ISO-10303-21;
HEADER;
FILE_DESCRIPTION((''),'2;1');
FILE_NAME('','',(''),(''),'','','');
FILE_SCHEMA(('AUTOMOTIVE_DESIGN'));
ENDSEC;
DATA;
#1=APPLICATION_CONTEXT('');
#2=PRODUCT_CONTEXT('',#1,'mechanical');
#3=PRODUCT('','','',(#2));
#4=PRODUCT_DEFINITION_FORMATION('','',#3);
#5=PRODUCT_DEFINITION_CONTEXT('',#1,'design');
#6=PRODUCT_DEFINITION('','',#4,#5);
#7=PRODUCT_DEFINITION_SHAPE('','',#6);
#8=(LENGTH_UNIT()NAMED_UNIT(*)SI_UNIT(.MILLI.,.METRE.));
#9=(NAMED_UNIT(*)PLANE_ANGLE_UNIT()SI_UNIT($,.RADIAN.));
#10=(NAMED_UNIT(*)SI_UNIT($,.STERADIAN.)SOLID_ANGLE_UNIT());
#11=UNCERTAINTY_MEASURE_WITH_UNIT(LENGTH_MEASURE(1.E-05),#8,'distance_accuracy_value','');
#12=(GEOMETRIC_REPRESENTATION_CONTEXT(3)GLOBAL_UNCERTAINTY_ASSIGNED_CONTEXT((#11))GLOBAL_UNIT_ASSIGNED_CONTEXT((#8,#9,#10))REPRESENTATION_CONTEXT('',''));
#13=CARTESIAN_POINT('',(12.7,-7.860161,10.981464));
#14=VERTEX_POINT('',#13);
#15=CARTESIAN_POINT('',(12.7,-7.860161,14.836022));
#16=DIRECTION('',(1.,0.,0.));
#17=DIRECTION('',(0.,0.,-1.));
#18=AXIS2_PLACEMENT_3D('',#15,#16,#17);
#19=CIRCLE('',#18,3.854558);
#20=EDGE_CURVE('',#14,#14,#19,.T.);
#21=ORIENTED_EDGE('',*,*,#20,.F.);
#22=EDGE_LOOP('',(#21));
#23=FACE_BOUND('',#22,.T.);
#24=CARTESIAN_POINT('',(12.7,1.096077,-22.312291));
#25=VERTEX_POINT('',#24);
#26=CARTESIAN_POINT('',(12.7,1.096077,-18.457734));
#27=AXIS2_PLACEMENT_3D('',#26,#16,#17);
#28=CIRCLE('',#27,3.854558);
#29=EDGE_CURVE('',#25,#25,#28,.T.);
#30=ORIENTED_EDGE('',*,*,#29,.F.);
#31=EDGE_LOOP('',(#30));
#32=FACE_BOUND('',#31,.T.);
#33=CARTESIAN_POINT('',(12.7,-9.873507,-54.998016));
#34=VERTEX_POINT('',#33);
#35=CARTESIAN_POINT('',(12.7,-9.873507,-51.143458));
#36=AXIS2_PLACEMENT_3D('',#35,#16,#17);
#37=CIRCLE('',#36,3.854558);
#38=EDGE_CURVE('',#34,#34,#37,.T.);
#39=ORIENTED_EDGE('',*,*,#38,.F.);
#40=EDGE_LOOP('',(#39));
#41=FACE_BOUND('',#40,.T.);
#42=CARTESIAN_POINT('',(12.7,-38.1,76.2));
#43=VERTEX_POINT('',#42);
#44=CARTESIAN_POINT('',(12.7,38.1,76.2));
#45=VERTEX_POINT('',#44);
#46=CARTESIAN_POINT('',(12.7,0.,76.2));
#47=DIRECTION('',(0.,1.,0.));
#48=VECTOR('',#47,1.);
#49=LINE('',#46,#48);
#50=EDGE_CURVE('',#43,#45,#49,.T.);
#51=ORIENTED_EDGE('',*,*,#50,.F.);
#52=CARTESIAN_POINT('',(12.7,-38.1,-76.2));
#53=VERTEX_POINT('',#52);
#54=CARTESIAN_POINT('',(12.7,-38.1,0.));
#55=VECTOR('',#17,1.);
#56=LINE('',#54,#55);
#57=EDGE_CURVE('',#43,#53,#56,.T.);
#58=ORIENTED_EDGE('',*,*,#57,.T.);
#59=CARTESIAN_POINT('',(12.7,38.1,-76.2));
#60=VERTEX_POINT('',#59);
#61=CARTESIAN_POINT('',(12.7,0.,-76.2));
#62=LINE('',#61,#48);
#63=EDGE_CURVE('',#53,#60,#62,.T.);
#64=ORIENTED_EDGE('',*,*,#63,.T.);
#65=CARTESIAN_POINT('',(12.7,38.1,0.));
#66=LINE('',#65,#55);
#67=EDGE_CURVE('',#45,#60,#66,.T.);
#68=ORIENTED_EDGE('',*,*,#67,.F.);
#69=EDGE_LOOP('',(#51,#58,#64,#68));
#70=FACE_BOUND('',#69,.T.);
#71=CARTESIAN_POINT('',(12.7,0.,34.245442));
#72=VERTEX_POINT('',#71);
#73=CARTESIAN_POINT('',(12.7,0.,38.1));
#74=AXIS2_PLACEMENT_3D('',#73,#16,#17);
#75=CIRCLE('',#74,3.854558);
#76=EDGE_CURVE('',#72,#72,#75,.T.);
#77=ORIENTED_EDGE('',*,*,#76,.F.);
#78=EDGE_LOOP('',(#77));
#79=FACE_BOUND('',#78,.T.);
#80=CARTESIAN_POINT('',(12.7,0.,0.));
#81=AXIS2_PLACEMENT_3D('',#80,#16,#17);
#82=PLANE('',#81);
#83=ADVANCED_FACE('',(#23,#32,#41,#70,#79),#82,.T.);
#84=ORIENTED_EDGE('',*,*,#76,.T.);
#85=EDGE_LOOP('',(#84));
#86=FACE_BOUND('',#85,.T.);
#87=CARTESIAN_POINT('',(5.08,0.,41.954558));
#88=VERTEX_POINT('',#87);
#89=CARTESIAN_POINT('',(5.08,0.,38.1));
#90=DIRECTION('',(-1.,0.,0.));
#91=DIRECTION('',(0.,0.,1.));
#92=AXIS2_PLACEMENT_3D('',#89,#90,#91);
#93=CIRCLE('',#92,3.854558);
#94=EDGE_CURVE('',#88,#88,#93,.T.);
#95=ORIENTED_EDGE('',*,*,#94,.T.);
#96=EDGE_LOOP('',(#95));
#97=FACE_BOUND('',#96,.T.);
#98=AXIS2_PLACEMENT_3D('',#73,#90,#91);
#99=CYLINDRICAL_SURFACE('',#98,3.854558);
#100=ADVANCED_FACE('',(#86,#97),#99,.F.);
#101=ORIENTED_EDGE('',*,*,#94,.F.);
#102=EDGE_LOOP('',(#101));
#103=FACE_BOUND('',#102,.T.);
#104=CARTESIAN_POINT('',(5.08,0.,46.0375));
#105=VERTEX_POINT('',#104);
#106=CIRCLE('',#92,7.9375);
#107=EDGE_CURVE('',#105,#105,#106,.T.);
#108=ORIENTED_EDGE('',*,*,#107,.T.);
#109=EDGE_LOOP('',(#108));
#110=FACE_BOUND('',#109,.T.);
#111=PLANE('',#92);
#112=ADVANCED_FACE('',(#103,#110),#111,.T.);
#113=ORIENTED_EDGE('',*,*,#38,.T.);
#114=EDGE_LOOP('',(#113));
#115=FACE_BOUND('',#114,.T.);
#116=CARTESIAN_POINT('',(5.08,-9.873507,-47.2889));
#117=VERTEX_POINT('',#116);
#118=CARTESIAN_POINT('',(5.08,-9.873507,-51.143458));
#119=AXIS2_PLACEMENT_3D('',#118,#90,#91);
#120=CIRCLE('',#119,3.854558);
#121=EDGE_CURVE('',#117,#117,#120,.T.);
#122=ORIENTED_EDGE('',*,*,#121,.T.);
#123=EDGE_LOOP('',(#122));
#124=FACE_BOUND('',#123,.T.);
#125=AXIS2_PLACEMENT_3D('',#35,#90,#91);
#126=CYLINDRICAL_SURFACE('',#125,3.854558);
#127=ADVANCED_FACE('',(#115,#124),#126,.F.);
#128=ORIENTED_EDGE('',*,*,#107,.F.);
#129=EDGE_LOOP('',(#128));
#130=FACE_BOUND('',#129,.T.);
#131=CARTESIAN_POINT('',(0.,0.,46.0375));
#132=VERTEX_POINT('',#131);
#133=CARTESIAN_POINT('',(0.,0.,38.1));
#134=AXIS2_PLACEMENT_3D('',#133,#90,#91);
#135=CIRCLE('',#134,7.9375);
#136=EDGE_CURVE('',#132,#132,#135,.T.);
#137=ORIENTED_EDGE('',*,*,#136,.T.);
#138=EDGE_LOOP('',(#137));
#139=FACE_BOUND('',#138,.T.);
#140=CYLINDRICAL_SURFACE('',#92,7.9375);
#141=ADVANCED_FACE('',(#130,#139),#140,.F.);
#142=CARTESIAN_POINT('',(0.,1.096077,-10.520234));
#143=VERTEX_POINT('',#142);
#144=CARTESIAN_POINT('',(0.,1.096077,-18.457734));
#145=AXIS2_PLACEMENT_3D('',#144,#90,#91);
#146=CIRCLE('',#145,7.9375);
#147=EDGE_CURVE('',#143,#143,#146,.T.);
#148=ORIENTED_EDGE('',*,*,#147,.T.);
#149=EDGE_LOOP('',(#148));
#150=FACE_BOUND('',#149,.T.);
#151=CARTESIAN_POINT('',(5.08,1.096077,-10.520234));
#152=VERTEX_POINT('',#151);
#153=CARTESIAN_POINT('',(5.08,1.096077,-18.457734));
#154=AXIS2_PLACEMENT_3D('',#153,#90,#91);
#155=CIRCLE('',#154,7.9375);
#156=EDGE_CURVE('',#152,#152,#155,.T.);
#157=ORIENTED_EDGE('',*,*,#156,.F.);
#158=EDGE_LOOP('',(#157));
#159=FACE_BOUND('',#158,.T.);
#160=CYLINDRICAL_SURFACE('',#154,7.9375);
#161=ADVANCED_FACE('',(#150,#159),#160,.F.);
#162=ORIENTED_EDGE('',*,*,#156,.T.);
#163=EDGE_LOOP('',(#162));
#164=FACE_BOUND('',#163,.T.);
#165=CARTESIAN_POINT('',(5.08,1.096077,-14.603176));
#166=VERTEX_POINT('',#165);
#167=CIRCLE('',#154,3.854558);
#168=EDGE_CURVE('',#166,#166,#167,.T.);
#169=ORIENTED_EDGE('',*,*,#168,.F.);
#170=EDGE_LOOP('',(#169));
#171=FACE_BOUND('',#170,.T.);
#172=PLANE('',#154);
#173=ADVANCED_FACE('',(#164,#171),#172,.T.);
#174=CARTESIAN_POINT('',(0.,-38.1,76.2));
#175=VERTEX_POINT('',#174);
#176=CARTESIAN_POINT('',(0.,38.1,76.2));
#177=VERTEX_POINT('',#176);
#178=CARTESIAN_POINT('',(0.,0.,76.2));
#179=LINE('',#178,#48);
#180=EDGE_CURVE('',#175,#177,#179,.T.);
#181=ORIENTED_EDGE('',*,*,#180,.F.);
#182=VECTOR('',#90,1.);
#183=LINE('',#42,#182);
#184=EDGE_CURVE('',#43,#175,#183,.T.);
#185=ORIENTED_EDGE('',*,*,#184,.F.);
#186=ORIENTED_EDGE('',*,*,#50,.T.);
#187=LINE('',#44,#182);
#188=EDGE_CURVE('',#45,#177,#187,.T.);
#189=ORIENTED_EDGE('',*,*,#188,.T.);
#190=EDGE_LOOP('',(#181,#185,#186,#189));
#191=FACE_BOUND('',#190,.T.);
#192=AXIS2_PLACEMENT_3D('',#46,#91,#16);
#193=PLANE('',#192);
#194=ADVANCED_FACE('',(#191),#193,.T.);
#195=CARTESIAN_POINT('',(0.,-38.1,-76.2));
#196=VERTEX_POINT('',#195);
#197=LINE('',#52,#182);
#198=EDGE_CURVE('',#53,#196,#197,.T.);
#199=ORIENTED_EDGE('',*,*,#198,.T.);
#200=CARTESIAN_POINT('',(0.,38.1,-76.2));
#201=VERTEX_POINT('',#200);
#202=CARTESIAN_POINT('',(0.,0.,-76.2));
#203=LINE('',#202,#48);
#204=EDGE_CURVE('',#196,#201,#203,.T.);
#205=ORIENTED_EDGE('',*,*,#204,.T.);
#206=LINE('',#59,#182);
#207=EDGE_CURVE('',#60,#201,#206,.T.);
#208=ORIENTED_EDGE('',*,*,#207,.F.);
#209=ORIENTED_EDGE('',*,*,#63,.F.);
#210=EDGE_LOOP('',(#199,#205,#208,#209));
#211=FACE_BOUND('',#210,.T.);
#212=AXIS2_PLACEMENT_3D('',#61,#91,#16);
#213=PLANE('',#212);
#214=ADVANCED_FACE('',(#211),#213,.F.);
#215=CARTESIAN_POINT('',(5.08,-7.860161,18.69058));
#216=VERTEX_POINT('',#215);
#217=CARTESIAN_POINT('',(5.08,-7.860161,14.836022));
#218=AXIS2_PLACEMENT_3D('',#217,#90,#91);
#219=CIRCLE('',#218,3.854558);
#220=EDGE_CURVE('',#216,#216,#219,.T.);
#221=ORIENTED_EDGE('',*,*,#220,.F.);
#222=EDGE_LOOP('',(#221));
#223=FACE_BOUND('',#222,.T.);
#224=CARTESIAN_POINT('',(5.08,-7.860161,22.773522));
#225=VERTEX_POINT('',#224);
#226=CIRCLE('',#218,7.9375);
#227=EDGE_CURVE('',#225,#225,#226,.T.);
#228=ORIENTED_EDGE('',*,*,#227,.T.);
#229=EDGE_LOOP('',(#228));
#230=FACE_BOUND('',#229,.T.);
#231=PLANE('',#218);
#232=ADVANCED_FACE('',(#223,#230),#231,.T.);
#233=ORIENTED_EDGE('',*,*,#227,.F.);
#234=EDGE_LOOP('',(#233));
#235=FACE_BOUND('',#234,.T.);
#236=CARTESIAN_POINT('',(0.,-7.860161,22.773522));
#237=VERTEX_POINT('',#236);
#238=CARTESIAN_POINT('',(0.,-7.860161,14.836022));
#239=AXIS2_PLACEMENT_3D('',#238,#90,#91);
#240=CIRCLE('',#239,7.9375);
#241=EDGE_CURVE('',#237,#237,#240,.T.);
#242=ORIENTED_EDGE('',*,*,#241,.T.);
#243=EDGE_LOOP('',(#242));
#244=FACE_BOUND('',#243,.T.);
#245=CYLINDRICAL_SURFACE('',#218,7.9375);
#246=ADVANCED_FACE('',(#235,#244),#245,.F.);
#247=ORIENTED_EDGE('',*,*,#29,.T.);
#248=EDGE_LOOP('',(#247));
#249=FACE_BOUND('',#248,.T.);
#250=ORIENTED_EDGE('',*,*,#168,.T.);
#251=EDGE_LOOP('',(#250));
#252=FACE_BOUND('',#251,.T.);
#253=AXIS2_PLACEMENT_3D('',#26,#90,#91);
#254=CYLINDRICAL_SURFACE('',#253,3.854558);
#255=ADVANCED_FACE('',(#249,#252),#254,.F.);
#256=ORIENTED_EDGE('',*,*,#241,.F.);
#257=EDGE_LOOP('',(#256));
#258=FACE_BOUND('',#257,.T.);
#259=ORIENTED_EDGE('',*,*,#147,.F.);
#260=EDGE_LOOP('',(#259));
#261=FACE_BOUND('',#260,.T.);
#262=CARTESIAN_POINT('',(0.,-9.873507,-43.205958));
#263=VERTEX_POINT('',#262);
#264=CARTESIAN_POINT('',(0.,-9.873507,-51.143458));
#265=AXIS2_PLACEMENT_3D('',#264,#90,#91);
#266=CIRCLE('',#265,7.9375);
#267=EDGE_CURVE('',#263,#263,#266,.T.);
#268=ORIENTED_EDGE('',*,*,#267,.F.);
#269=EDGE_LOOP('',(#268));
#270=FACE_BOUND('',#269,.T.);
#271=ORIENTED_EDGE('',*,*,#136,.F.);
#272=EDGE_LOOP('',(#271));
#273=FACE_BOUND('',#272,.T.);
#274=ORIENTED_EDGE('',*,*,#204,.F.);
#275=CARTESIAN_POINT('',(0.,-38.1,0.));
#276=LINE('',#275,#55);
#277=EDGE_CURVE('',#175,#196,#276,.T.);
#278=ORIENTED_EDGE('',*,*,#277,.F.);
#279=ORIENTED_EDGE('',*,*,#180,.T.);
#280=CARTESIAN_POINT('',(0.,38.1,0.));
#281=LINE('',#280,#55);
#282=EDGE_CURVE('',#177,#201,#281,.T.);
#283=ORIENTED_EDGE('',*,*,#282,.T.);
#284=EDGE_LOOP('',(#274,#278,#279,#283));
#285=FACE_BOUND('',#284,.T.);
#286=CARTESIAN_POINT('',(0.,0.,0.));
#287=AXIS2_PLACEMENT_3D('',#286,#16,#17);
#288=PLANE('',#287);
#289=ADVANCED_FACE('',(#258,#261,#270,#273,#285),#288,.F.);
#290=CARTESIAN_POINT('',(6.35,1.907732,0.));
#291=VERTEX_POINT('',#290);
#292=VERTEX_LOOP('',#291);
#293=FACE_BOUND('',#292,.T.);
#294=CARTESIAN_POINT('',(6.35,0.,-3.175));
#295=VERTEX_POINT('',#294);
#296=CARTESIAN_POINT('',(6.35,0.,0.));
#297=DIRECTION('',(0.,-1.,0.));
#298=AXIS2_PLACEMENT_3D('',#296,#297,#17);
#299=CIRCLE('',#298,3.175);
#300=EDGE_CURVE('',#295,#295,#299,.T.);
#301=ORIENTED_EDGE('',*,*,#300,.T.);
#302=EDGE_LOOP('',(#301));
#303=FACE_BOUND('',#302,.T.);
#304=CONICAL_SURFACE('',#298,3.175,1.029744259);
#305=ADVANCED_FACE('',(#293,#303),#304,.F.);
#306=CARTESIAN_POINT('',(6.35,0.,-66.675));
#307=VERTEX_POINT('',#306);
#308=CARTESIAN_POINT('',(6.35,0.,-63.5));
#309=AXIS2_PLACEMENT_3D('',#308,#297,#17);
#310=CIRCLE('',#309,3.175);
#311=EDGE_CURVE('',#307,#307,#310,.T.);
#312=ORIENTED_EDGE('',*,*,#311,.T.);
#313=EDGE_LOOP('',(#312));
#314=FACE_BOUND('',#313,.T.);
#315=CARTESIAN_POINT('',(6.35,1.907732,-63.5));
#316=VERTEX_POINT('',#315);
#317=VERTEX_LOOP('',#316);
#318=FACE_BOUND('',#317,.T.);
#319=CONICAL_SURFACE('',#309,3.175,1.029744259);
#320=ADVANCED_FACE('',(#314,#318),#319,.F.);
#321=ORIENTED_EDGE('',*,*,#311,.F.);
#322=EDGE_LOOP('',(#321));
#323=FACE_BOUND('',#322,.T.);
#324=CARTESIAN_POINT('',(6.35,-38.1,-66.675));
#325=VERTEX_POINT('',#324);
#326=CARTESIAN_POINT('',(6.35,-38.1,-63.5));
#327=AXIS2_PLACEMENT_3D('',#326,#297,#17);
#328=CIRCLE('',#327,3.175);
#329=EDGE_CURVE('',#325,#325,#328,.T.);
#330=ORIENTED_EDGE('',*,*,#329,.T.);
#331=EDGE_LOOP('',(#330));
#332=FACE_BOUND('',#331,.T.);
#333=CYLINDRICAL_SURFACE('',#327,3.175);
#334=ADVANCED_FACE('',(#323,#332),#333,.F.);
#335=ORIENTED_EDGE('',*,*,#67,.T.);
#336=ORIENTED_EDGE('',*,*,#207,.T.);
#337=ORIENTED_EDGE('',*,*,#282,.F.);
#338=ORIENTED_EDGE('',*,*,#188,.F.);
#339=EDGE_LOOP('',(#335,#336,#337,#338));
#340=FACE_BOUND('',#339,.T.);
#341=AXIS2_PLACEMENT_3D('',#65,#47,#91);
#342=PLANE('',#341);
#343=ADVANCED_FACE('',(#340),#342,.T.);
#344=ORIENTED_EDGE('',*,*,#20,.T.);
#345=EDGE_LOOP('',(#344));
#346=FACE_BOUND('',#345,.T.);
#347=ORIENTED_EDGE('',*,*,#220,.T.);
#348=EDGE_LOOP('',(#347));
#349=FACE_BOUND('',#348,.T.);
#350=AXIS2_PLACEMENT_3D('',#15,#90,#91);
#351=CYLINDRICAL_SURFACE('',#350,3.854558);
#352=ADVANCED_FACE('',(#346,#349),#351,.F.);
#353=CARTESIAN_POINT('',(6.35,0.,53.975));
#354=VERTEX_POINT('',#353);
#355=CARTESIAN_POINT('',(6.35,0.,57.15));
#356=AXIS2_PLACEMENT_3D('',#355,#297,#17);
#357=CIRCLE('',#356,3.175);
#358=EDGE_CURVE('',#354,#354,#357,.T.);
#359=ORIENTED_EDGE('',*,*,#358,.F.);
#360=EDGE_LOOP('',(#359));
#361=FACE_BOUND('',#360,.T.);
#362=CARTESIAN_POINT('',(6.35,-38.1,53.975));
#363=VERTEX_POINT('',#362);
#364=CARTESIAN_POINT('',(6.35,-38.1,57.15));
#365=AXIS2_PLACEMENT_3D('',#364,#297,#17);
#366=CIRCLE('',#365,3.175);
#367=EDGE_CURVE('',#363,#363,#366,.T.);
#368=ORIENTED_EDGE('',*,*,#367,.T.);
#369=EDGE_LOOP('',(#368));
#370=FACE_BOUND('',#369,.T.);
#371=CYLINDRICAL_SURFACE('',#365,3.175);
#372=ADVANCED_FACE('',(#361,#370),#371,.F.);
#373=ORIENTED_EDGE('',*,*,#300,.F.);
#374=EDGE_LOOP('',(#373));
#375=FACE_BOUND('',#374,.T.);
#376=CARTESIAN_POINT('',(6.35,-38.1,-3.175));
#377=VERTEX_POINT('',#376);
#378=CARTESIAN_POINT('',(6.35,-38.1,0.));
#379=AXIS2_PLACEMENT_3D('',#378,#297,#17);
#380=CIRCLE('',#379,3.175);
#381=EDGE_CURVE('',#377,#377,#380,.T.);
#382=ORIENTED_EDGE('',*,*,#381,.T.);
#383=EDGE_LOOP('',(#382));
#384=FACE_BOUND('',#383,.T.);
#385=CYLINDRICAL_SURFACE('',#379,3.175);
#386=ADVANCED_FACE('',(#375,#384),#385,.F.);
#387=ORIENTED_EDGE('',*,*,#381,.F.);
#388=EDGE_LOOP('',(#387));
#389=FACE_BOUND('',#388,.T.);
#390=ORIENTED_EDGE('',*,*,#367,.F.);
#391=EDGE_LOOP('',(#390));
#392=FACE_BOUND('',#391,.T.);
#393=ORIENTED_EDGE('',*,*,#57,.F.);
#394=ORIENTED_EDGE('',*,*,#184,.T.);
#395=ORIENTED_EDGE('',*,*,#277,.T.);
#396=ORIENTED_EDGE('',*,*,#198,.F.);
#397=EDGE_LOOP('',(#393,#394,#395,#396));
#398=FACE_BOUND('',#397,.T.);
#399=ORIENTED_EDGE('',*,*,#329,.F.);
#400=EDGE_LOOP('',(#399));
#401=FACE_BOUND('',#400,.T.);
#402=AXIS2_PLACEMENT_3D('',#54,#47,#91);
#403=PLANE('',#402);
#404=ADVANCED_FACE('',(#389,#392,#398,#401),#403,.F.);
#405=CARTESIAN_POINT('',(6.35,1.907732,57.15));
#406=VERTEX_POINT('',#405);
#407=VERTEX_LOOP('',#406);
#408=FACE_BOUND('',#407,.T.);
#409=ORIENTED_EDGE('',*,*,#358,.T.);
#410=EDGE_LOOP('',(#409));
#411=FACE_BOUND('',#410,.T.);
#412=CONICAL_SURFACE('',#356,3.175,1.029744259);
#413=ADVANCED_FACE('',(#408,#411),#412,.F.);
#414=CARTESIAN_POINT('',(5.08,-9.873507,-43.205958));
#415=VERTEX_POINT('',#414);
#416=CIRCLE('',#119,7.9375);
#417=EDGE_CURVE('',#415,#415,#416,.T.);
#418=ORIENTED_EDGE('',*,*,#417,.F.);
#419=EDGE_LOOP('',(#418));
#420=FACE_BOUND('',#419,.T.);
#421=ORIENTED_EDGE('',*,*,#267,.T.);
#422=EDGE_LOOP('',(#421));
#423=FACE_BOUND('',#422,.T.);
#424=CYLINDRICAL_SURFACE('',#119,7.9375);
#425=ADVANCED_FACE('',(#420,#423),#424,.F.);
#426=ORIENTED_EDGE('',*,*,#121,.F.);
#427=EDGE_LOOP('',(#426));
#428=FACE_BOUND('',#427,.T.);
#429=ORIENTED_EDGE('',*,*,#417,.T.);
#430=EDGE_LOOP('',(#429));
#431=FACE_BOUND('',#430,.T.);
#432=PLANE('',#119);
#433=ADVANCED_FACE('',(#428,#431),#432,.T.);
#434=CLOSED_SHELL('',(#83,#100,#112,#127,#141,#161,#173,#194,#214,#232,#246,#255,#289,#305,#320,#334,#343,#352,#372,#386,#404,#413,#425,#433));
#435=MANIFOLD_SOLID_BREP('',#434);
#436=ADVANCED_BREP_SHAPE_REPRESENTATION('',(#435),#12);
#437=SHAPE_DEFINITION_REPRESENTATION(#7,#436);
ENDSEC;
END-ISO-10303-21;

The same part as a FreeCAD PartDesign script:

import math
import FreeCAD as App
import Part
import Sketcher

V = App.Vector
Q = App.Units.Quantity


def add_polygon(sketch, points):
    """Adds a closed chain of lines whose ends are joined by coincident constraints."""
    first, n = sketch.GeometryCount, len(points)
    for a, b in zip(points, points[1:] + points[:1]):
        sketch.addGeometry(Part.LineSegment(App.Vector(*a, 0), App.Vector(*b, 0)), False)
    for i in range(n):
        sketch.addConstraint(Sketcher.Constraint("Coincident", first + i, 2, first + (i + 1) % n, 1))

doc = App.newDocument("Part")
params = doc.addObject("Spreadsheet::Sheet", "Params")
for row, (alias, value) in enumerate([
    ("sketch1_width", "3 in"),
    ("sketch1_height", "6 in"),
    ("pad1_length", "0.5 in"),
    ("sketch2_diameter", "0.25 in"),
    ("hole_diameter", "0.25 in"),
    ("hole_depth", "1.5 in"),
    ("sketch3_diameter", "0.625 in"),
    ("pocket1_length", "0.2 in"),
], start=1):
    params.set(f"A{row}", alias)
    params.set(f"B{row}", "=" + value)
    params.setAlias(f"B{row}", alias)

body = doc.addObject("PartDesign::Body", "Body")

sketch1 = body.newObject("Sketcher::SketchObject", "Sketch")
sketch1.AttachmentSupport = (doc.getObject("YZ_Plane"), [""])
sketch1.MapMode = "FlatFace"
add_polygon(sketch1, [(38.1, 76.2), (-38.1, 76.2), (-38.1, -76.2), (38.1, -76.2)])
sketch1.addGeometry(Part.Circle(V(0, 38.1, 0), V(0, 0, 1), 3.854558), False)
sketch1.addGeometry(Part.ArcOfCircle(Part.Circle(V(1.096077, -18.457734, 0), V(0, 0, 1), 3.854558), math.radians(-90), math.radians(106.520525)), False)
sketch1.addGeometry(Part.ArcOfCircle(Part.Circle(V(1.096077, -18.457734, 0), V(0, 0, 1), 3.854558), math.radians(-106.520525), math.radians(-90)), False)
sketch1.addGeometry(Part.ArcOfCircle(Part.Circle(V(1.096077, -18.457734, 0), V(0, 0, 1), 3.854558), math.radians(106.520525), math.radians(253.479475)), False)
sketch1.addGeometry(Part.Circle(V(-7.860161, 14.836022, 0), V(0, 0, 1), 3.854558), False)
sketch1.addGeometry(Part.Circle(V(-9.873507, -51.143458, 0), V(0, 0, 1), 3.854558), False)
sketch1.addConstraint([
    Sketcher.Constraint("Tangent", 5, 1, 6, 2),
    Sketcher.Constraint("Tangent", 6, 1, 7, 2),
    Sketcher.Constraint("Tangent", 7, 1, 5, 2),
    Sketcher.Constraint("Horizontal", 0),
    Sketcher.Constraint("Vertical", 1),
    Sketcher.Constraint("Horizontal", 2),
    Sketcher.Constraint("Vertical", 3),
    Sketcher.Constraint("Equal", 4, 5),
    Sketcher.Constraint("Equal", 7, 8),
    Sketcher.Constraint("Equal", 8, 9),
    Sketcher.Constraint("Symmetric", 0, 2, 2, 2, -1, 1),
    Sketcher.Constraint("PointOnObject", 4, 3, -2),
    Sketcher.Constraint("PointOnObject", 6, 1, -2),
    Sketcher.Constraint("PointOnObject", 7, 1, -2),
    Sketcher.Constraint("Vertical", 7, 3, 5, 1),
    Sketcher.Constraint("DistanceX", 0, 2, 0, 1, Q("3 in")),
    Sketcher.Constraint("DistanceY", 1, 2, 1, 1, Q("6 in")),
    Sketcher.Constraint("DistanceY", -1, 1, 4, 3, Q("1.5 in")),
    Sketcher.Constraint("Diameter", 4, Q("7.709116 mm")),
    Sketcher.Constraint("DistanceY", 7, 1, -1, 1, Q("14.7623 mm")),
    Sketcher.Constraint("DistanceX", 8, 3, -1, 1, Q("7.860161 mm")),
    Sketcher.Constraint("DistanceY", 5, 1, -1, 1, Q("22.312291 mm")),
    Sketcher.Constraint("DistanceY", 9, 3, 8, 3, Q("65.97948 mm")),
    Sketcher.Constraint("DistanceY", 9, 3, 6, 1, Q("28.990291 mm")),
    Sketcher.Constraint("DistanceX", 9, 3, -1, 1, Q("9.873507 mm")),
])
sketch1.setExpression("Constraints[19]", "Params.sketch1_width")
sketch1.setExpression("Constraints[20]", "Params.sketch1_height")
pad1 = body.newObject("PartDesign::Pad", "Pad")
pad1.Profile = sketch1
pad1.setExpression("Length", "Params.pad1_length")

sketch2 = body.newObject("Sketcher::SketchObject", "Sketch001")
sketch2.AttachmentSupport = (doc.getObject("XZ_Plane"), [""])
sketch2.MapMode = "FlatFace"
sketch2.AttachmentOffset = App.Placement(V(0, 0, 1.5 * 25.4), App.Rotation())
sketch2.addGeometry([
    Part.Circle(V(6.35, 57.15, 0), V(0, 0, 1), 3.175),
    Part.Circle(V(6.35, -63.5, 0), V(0, 0, 1), 3.175),
    Part.Circle(V(6.35, 0, 0), V(0, 0, 1), 3.175),
], False)
sketch2.addConstraint([
    Sketcher.Constraint("Equal", 0, 1),
    Sketcher.Constraint("Equal", 1, 2),
    Sketcher.Constraint("PointOnObject", 2, 3, -1),
    Sketcher.Constraint("Vertical", 0, 3, 1, 3),
    Sketcher.Constraint("Vertical", 1, 3, 2, 3),
    Sketcher.Constraint("Diameter", 0, Q("0.25 in")),
    Sketcher.Constraint("DistanceY", 1, 3, -1, 1, Q("2.5 in")),
    Sketcher.Constraint("DistanceX", -1, 1, 0, 3, Q("0.25 in")),
    Sketcher.Constraint("DistanceY", -1, 1, 0, 3, Q("2.25 in")),
])
sketch2.setExpression("Constraints[5]", "Params.sketch2_diameter")
doc.recompute()
hole = body.newObject("PartDesign::Hole", "Hole")
hole.Profile = sketch2
hole.ThreadType = "None"
hole.setExpression("Diameter", "Params.hole_diameter")
hole.DepthType = "Dimension"
hole.setExpression("Depth", "Params.hole_depth")
hole.DrillPoint = "Angled"
hole.DrillPointAngle = 118

sketch3 = body.newObject("Sketcher::SketchObject", "Sketch002")
sketch3.AttachmentSupport = (doc.getObject("YZ_Plane"), [""])
sketch3.MapMode = "FlatFace"
sketch3.addGeometry([
    Part.Circle(V(0, 38.1, 0), V(0, 0, 1), 7.9375),
    Part.Circle(V(-7.860161, 14.836022, 0), V(0, 0, 1), 7.9375),
    Part.Circle(V(1.096077, -18.457734, 0), V(0, 0, 1), 7.9375),
    Part.Circle(V(-9.873507, -51.143458, 0), V(0, 0, 1), 7.9375),
], False)
sketch3.addConstraint([
    Sketcher.Constraint("Equal", 0, 1),
    Sketcher.Constraint("Equal", 1, 2),
    Sketcher.Constraint("Equal", 2, 3),
    Sketcher.Constraint("PointOnObject", 0, 3, -2),
    Sketcher.Constraint("Diameter", 0, Q("0.625 in")),
    Sketcher.Constraint("DistanceY", -1, 1, 0, 3, Q("1.5 in")),
    Sketcher.Constraint("DistanceX", 1, 3, -1, 1, Q("7.860161 mm")),
    Sketcher.Constraint("DistanceX", 1, 3, 2, 3, Q("8.956238 mm")),
    Sketcher.Constraint("DistanceY", 3, 3, 1, 3, Q("65.97948 mm")),
    Sketcher.Constraint("DistanceY", -1, 1, 1, 3, Q("14.836022 mm")),
    Sketcher.Constraint("DistanceY", 2, 3, -1, 1, Q("18.457734 mm")),
    Sketcher.Constraint("DistanceX", 3, 3, -1, 1, Q("9.873507 mm")),
])
sketch3.setExpression("Constraints[4]", "Params.sketch3_diameter")
pocket1 = body.newObject("PartDesign::Pocket", "Pocket")
pocket1.Profile = sketch3
pocket1.setExpression("Length", "Params.pocket1_length")
pocket1.Reversed = True

doc.recompute()
